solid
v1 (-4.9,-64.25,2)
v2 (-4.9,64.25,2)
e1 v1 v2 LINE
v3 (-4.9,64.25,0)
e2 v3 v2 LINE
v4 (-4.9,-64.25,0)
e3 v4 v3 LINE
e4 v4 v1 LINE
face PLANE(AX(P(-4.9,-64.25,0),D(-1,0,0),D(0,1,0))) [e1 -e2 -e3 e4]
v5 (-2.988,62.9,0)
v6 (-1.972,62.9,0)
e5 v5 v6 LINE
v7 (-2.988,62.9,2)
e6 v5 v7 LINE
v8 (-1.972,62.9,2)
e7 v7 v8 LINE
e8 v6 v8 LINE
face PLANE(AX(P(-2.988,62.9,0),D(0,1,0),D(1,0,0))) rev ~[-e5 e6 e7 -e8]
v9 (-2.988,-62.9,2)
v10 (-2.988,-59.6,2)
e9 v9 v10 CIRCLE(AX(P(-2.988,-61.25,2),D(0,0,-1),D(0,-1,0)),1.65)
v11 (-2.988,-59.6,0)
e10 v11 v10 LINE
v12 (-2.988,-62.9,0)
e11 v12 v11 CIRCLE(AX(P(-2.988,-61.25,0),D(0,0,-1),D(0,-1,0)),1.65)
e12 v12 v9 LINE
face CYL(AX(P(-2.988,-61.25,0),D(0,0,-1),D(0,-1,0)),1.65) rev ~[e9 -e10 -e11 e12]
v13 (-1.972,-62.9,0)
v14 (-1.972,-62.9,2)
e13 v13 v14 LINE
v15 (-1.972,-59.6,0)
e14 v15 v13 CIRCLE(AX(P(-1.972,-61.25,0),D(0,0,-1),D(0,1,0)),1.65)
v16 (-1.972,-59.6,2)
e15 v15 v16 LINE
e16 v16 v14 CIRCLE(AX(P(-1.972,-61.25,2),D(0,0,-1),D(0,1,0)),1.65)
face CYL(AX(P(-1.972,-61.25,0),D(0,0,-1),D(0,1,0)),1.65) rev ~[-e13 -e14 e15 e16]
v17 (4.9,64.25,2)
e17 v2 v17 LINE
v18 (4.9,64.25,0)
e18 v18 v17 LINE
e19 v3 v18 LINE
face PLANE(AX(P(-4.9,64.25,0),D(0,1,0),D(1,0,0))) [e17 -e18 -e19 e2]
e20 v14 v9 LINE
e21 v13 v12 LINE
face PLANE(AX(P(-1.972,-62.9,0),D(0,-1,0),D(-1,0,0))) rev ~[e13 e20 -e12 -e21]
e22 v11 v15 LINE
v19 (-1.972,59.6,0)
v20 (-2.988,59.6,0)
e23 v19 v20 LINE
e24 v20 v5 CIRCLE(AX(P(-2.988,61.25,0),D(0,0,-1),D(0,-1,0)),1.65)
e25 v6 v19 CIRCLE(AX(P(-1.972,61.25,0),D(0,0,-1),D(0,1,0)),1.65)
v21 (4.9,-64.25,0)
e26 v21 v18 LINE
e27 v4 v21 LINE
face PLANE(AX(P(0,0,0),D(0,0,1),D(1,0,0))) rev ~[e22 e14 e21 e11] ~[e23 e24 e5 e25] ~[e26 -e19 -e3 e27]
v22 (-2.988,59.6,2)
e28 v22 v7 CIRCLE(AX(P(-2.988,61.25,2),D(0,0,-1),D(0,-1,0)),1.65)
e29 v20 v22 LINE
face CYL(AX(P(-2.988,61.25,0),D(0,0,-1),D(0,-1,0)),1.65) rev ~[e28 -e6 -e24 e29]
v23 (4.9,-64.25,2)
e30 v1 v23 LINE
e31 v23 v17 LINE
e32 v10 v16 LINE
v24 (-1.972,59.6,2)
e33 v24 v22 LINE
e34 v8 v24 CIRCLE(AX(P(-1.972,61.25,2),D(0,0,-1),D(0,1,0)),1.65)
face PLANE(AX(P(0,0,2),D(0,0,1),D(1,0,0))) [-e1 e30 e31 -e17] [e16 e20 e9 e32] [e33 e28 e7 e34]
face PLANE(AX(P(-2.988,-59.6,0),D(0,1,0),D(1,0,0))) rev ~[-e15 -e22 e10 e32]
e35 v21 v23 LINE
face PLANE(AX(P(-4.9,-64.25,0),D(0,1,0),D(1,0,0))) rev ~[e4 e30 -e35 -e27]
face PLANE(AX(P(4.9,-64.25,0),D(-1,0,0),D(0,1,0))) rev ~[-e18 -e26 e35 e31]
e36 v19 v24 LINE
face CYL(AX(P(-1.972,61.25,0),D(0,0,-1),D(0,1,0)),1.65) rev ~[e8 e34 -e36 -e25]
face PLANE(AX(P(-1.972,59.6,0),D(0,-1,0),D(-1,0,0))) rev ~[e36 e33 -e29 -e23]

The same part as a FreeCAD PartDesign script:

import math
import FreeCAD as App
import Part
import Sketcher
from FreeCAD import Vector
Q = App.Units.Quantity


def add_polygon(sketch, points):
    """Adds a closed chain of lines whose ends are joined by coincident constraints."""
    first, n = sketch.GeometryCount, len(points)
    for a, b in zip(points, points[1:] + points[:1]):
        sketch.addGeometry(Part.LineSegment(App.Vector(*a, 0), App.Vector(*b, 0)), False)
    for i in range(n):
        sketch.addConstraint(Sketcher.Constraint("Coincident", first + i, 2, first + (i + 1) % n, 1))

doc = App.newDocument("Part")
body = doc.addObject("PartDesign::Body", "Body")

# Sketch on XY plane
sketch1 = body.newObject("Sketcher::SketchObject", "Sketch")
sketch1.AttachmentSupport = (doc.getObject("XY_Plane"), [""])
sketch1.MapMode = "FlatFace"
add_polygon(sketch1, [(-4.9, 64.2), (-4.9, -64.2), (4.9, -64.2), (4.9, 64.2)])  # lines 0-3
sketch1.addGeometry(Part.ArcOfCircle(Part.Circle(Vector(-3, -61.2, 0), Vector(0, 0, 1), 1.6), math.radians(90), math.radians(270)), False)  # 4
sketch1.addGeometry(Part.LineSegment(Vector(-3, -59.6, 0), Vector(-2, -59.6, 0)), False)  # 5
sketch1.addGeometry(Part.ArcOfCircle(Part.Circle(Vector(-2, -61.2, 0), Vector(0, 0, 1), 1.6), math.radians(-90), math.radians(90)), False)  # 6
sketch1.addGeometry(Part.LineSegment(Vector(-2, -62.9, 0), Vector(-3, -62.9, 0)), False)  # 7
sketch1.addGeometry(Part.ArcOfCircle(Part.Circle(Vector(-3, 61.2, 0), Vector(0, 0, 1), 1.6), math.radians(90), math.radians(270)), False)  # 8
sketch1.addGeometry(Part.LineSegment(Vector(-3, 62.9, 0), Vector(-2, 62.9, 0)), False)  # 9
sketch1.addGeometry(Part.ArcOfCircle(Part.Circle(Vector(-2, 61.2, 0), Vector(0, 0, 1), 1.6), math.radians(-90), math.radians(90)), False)  # 10
sketch1.addGeometry(Part.LineSegment(Vector(-2, 59.6, 0), Vector(-3, 59.6, 0)), False)  # 11
sketch1.addConstraint(Sketcher.Constraint("Tangent", 4, 1, 5, 1))
sketch1.addConstraint(Sketcher.Constraint("Tangent", 5, 2, 6, 2))
sketch1.addConstraint(Sketcher.Constraint("Tangent", 6, 1, 7, 1))
sketch1.addConstraint(Sketcher.Constraint("Tangent", 7, 2, 4, 2))
sketch1.addConstraint(Sketcher.Constraint("Tangent", 8, 1, 9, 1))
sketch1.addConstraint(Sketcher.Constraint("Tangent", 9, 2, 10, 2))
sketch1.addConstraint(Sketcher.Constraint("Tangent", 10, 1, 11, 1))
sketch1.addConstraint(Sketcher.Constraint("Tangent", 11, 2, 8, 2))
sketch1.addConstraint(Sketcher.Constraint("Vertical", 0))
sketch1.addConstraint(Sketcher.Constraint("Horizontal", 1))
sketch1.addConstraint(Sketcher.Constraint("Vertical", 2))
sketch1.addConstraint(Sketcher.Constraint("Horizontal", 3))
sketch1.addConstraint(Sketcher.Constraint("Horizontal", 5))
sketch1.addConstraint(Sketcher.Constraint("Horizontal", 7))
sketch1.addConstraint(Sketcher.Constraint("Horizontal", 9))
sketch1.addConstraint(Sketcher.Constraint("Horizontal", 11))
sketch1.addConstraint(Sketcher.Constraint("Equal", 6, 8))
sketch1.addConstraint(Sketcher.Constraint("Symmetric", 0, 2, 2, 2, -1, 1))
sketch1.addConstraint(Sketcher.Constraint("Symmetric", 4, 3, 8, 3, -1))
sketch1.addConstraint(Sketcher.Constraint("Vertical", 6, 3, 10, 3))
sketch1.addConstraint(Sketcher.Constraint("Radius", 4, Q("1.65 mm")))
sketch1.addConstraint(Sketcher.Constraint("DistanceX", 1, 1, 1, 2, Q("9.8 mm")))
sketch1.addConstraint(Sketcher.Constraint("DistanceY", 0, 2, 0, 1, Q("128.5 mm")))
sketch1.addConstraint(Sketcher.Constraint("DistanceY", 0, 2, 4, 3, Q("3 mm")))
sketch1.addConstraint(Sketcher.Constraint("DistanceX", 5, 1, 5, 2, Q("1.016 mm")))
sketch1.addConstraint(Sketcher.Constraint("DistanceX", 4, 3, -1, 1, Q("2.988 mm")))
pad1 = body.newObject("PartDesign::Pad", "Pad")
pad1.Profile = sketch1
pad1.Length = 2

doc.recompute()
